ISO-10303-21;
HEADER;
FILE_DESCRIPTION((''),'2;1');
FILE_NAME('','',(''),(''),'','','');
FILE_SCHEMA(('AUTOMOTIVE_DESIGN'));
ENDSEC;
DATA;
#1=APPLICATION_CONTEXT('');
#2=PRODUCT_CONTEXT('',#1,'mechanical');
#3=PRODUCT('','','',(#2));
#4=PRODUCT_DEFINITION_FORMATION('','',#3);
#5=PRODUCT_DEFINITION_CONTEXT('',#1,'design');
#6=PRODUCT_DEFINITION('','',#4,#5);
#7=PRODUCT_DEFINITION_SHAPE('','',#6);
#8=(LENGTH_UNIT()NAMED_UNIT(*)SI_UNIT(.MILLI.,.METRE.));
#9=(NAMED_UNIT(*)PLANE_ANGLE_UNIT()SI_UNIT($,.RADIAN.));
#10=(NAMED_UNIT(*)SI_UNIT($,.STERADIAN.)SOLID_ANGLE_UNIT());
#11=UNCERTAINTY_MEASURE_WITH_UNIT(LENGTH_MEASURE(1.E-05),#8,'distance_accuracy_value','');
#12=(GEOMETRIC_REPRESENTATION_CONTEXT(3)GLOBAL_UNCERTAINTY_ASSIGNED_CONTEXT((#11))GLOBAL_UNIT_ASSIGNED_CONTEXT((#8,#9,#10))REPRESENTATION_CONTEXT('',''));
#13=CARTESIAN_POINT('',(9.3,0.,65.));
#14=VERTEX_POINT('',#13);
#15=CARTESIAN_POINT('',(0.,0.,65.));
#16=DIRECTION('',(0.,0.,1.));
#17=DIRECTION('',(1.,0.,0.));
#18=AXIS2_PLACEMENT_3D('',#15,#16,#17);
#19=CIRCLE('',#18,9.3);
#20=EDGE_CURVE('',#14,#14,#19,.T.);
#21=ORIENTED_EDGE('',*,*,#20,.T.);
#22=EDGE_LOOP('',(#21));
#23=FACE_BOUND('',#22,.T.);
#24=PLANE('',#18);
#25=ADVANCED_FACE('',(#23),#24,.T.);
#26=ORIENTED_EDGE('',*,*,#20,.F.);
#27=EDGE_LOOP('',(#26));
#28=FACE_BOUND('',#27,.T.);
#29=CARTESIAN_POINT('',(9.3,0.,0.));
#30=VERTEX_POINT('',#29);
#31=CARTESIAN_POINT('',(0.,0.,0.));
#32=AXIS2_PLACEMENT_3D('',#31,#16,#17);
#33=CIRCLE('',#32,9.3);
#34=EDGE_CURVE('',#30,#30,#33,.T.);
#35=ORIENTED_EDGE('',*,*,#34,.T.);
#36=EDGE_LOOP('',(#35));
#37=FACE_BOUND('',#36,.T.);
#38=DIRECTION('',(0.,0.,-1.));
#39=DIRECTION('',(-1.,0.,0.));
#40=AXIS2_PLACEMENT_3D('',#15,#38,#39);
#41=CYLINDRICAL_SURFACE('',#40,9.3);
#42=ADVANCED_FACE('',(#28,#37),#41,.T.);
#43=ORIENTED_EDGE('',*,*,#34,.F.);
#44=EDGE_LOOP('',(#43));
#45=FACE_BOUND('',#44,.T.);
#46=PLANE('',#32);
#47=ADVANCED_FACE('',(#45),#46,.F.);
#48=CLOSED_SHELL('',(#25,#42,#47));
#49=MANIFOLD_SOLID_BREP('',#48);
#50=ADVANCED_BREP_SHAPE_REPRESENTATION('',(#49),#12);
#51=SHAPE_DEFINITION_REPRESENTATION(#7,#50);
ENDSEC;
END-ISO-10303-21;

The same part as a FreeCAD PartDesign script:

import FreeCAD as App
import Part
import Sketcher
Q = App.Units.Quantity

doc = App.newDocument("Part")
body = doc.addObject("PartDesign::Body", "Body")

sketch1 = body.newObject("Sketcher::SketchObject", "Sketch")
sketch1.AttachmentSupport = (doc.getObject("XY_Plane"), [""])
sketch1.MapMode = "FlatFace"
sketch1.addGeometry(Part.Circle(App.Vector(0, 0, 0), App.Vector(0, 0, 1), 9), False)
sketch1.addConstraint(Sketcher.Constraint("Coincident", 0, 3, -1, 1))
sketch1.addConstraint(Sketcher.Constraint("Diameter", 0, Q("18.6 mm")))
pad1 = body.newObject("PartDesign::Pad", "Pad")
pad1.Profile = sketch1
pad1.Length = 65

doc.recompute()
